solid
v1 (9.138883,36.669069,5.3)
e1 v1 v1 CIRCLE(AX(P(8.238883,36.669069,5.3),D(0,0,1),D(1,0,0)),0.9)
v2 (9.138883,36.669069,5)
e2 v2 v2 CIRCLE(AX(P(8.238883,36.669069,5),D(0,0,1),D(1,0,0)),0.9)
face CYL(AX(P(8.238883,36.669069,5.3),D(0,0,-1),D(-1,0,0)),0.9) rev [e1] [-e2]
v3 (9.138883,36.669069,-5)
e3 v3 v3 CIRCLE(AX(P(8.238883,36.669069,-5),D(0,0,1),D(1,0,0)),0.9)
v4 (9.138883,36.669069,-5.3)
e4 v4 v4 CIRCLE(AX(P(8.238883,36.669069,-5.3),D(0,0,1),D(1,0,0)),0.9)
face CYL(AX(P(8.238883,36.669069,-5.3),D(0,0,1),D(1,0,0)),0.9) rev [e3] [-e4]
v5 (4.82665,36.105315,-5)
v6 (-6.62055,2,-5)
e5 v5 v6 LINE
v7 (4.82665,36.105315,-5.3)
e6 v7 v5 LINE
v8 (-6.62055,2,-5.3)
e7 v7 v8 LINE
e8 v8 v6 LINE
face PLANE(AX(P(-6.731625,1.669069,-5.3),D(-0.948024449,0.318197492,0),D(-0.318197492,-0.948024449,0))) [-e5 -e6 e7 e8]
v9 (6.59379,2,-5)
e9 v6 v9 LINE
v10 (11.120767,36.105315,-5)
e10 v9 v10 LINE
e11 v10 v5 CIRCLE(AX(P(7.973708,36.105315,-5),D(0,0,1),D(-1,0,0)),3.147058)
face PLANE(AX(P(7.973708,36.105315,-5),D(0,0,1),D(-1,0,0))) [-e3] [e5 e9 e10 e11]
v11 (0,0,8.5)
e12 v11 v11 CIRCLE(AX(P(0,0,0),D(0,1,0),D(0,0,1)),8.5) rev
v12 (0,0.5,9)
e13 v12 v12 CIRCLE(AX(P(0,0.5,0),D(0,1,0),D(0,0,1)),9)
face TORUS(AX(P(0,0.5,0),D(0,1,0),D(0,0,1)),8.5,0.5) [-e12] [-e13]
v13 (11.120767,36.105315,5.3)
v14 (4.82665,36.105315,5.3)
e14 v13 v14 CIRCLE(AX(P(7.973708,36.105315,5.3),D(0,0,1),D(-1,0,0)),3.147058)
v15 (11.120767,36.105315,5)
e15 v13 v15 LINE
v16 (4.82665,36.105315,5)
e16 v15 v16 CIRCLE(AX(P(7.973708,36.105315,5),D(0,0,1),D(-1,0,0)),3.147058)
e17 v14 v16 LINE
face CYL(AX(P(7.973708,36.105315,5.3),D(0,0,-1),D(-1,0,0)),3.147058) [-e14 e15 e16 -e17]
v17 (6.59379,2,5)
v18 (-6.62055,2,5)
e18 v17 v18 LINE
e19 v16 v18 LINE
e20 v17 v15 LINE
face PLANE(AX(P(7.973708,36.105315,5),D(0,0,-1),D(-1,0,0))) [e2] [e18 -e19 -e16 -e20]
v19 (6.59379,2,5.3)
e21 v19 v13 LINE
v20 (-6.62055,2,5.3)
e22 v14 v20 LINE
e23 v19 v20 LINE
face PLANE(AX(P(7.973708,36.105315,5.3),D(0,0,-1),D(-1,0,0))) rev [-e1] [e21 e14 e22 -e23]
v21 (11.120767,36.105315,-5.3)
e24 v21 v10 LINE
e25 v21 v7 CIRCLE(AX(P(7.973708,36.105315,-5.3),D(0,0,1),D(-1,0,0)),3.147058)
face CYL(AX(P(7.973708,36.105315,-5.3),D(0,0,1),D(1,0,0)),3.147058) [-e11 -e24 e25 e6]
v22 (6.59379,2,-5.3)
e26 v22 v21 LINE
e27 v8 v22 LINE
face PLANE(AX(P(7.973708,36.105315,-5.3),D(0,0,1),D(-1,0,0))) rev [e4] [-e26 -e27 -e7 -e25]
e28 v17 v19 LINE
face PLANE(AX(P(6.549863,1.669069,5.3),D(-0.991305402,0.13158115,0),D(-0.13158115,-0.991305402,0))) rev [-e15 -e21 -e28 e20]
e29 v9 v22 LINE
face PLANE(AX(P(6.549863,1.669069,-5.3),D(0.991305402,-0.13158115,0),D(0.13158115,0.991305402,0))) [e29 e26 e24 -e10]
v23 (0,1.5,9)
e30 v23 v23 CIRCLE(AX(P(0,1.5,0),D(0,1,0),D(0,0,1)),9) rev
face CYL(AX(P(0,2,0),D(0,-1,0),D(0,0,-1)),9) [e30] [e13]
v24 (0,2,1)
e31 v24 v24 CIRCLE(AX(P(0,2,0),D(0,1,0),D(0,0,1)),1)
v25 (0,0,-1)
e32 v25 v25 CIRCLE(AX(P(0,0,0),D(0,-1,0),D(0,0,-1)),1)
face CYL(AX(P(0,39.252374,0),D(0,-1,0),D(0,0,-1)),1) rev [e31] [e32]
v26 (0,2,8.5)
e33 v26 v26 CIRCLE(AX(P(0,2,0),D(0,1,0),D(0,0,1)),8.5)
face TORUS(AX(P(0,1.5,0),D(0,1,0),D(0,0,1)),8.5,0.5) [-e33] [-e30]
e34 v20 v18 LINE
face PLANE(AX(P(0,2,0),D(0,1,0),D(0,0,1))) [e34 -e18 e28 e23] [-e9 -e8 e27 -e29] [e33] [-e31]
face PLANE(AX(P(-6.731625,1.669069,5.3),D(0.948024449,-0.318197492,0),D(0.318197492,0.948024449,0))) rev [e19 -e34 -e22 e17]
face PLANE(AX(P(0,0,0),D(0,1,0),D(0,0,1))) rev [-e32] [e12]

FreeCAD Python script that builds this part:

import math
import FreeCAD as App
import Part
import Sketcher

V = App.Vector
Q = App.Units.Quantity


def edges_at(feature, points):
    """Names of the edges that pass closest to the given points."""
    edges = feature.Shape.Edges
    near = lambda p: min(range(len(edges)), key=lambda i: edges[i].distToShape(Part.Vertex(*p))[0])
    return sorted({f"Edge{near(p) + 1}" for p in points})

doc = App.newDocument("Part")
body = doc.addObject("PartDesign::Body", "Body")

# Sketch on XZ plane
sketch1 = body.newObject("Sketcher::SketchObject", "Sketch")
sketch1.AttachmentSupport = (doc.getObject("XZ_Plane"), [""])
sketch1.MapMode = "FlatFace"
sketch1.addGeometry(Part.Circle(V(0, 0, 0), V(0, 0, 1), 9), False)
sketch1.addConstraint([
    Sketcher.Constraint("Coincident", 0, 3, -1, 1),
    Sketcher.Constraint("Diameter", 0, Q("18 mm")),
])
pad1 = body.newObject("PartDesign::Pad", "Pad")
pad1.Profile = sketch1
pad1.Length = 2
pad1.Reversed = True
doc.recompute()

fillet = body.newObject("PartDesign::Fillet", "Fillet")
fillet.Base = (pad1, edges_at(pad1, [(-9, 0, 0), (-9, 2, 0)]))
fillet.Radius = 0.5

# Sketch on XY plane
sketch2 = body.newObject("Sketcher::SketchObject", "Sketch001")
sketch2.AttachmentSupport = (doc.getObject("XY_Plane"), [""])
sketch2.MapMode = "FlatFace"
sketch2.AttachmentOffset = App.Placement(V(0, 0, 5), App.Rotation())
sketch2.addGeometry([
    Part.LineSegment(V(6.549863, 1.669069, 0), V(11.120767, 36.105315, 0)),  # 0
    Part.ArcOfCircle(Part.Circle(V(7.973708, 36.105315, 0), V(0, 0, 1), 3.147058), math.radians(0), math.radians(180)),  # 1
    Part.LineSegment(V(4.82665, 36.105315, 0), V(-6.731625, 1.669069, 0)),  # 2
    Part.LineSegment(V(-6.731625, 1.669069, 0), V(6.549863, 1.669069, 0)),  # 3
    Part.Circle(V(8.238883, 36.669069, 0), V(0, 0, 1), 0.9),  # 4
], False)
sketch2.addConstraint([
    Sketcher.Constraint("Coincident", 0, 2, 1, 1),
    Sketcher.Constraint("Coincident", 1, 2, 2, 1),
    Sketcher.Constraint("Coincident", 2, 2, 3, 1),
    Sketcher.Constraint("Coincident", 3, 2, 0, 1),
    Sketcher.Constraint("Horizontal", 3),
    Sketcher.Constraint("Horizontal", 1, 3, 0, 2),
    Sketcher.Constraint("Horizontal", 0, 2, 1, 2),
    Sketcher.Constraint("Diameter", 4, Q("1.8 mm")),
    Sketcher.Constraint("DistanceY", 2, 2, 4, 3, Q("35 mm")),
    Sketcher.Constraint("Radius", 1, Q("3.147058 mm")),
    Sketcher.Constraint("DistanceX", 3, 1, 3, 2, Q("13.281488 mm")),
    Sketcher.Constraint("Distance", 0, Q("34.738282 mm")),
    Sketcher.Constraint("DistanceX", -1, 1, 1, 3, Q("7.973708 mm")),
    Sketcher.Constraint("DistanceY", -1, 1, 4, 3, Q("36.669069 mm")),
    Sketcher.Constraint("DistanceX", 2, 2, 0, 2, Q("17.852391 mm")),
    Sketcher.Constraint("DistanceX", 3, 2, 4, 3, Q("1.689019 mm")),
])
pad2 = body.newObject("PartDesign::Pad", "Pad001")
pad2.Profile = sketch2
pad2.Length = 0.3
doc.recompute()

mirrored = body.newObject("PartDesign::Mirrored", "Mirrored")
mirrored.Originals = [pad2]
mirrored.MirrorPlane = (doc.getObject("XY_Plane"), [""])
body.Tip = mirrored

# Sketch on XZ plane
sketch3 = body.newObject("Sketcher::SketchObject", "Sketch002")
sketch3.AttachmentSupport = (doc.getObject("XZ_Plane"), [""])
sketch3.MapMode = "FlatFace"
sketch3.addGeometry(Part.Circle(V(0, 0, 0), V(0, 0, 1), 1), False)
sketch3.addConstraint([
    Sketcher.Constraint("Coincident", 0, 3, -1, 1),
    Sketcher.Constraint("Diameter", 0, Q("2 mm")),
])
pocket1 = body.newObject("PartDesign::Pocket", "Pocket")
pocket1.Profile = sketch3
pocket1.Type = "ThroughAll"

doc.recompute()
